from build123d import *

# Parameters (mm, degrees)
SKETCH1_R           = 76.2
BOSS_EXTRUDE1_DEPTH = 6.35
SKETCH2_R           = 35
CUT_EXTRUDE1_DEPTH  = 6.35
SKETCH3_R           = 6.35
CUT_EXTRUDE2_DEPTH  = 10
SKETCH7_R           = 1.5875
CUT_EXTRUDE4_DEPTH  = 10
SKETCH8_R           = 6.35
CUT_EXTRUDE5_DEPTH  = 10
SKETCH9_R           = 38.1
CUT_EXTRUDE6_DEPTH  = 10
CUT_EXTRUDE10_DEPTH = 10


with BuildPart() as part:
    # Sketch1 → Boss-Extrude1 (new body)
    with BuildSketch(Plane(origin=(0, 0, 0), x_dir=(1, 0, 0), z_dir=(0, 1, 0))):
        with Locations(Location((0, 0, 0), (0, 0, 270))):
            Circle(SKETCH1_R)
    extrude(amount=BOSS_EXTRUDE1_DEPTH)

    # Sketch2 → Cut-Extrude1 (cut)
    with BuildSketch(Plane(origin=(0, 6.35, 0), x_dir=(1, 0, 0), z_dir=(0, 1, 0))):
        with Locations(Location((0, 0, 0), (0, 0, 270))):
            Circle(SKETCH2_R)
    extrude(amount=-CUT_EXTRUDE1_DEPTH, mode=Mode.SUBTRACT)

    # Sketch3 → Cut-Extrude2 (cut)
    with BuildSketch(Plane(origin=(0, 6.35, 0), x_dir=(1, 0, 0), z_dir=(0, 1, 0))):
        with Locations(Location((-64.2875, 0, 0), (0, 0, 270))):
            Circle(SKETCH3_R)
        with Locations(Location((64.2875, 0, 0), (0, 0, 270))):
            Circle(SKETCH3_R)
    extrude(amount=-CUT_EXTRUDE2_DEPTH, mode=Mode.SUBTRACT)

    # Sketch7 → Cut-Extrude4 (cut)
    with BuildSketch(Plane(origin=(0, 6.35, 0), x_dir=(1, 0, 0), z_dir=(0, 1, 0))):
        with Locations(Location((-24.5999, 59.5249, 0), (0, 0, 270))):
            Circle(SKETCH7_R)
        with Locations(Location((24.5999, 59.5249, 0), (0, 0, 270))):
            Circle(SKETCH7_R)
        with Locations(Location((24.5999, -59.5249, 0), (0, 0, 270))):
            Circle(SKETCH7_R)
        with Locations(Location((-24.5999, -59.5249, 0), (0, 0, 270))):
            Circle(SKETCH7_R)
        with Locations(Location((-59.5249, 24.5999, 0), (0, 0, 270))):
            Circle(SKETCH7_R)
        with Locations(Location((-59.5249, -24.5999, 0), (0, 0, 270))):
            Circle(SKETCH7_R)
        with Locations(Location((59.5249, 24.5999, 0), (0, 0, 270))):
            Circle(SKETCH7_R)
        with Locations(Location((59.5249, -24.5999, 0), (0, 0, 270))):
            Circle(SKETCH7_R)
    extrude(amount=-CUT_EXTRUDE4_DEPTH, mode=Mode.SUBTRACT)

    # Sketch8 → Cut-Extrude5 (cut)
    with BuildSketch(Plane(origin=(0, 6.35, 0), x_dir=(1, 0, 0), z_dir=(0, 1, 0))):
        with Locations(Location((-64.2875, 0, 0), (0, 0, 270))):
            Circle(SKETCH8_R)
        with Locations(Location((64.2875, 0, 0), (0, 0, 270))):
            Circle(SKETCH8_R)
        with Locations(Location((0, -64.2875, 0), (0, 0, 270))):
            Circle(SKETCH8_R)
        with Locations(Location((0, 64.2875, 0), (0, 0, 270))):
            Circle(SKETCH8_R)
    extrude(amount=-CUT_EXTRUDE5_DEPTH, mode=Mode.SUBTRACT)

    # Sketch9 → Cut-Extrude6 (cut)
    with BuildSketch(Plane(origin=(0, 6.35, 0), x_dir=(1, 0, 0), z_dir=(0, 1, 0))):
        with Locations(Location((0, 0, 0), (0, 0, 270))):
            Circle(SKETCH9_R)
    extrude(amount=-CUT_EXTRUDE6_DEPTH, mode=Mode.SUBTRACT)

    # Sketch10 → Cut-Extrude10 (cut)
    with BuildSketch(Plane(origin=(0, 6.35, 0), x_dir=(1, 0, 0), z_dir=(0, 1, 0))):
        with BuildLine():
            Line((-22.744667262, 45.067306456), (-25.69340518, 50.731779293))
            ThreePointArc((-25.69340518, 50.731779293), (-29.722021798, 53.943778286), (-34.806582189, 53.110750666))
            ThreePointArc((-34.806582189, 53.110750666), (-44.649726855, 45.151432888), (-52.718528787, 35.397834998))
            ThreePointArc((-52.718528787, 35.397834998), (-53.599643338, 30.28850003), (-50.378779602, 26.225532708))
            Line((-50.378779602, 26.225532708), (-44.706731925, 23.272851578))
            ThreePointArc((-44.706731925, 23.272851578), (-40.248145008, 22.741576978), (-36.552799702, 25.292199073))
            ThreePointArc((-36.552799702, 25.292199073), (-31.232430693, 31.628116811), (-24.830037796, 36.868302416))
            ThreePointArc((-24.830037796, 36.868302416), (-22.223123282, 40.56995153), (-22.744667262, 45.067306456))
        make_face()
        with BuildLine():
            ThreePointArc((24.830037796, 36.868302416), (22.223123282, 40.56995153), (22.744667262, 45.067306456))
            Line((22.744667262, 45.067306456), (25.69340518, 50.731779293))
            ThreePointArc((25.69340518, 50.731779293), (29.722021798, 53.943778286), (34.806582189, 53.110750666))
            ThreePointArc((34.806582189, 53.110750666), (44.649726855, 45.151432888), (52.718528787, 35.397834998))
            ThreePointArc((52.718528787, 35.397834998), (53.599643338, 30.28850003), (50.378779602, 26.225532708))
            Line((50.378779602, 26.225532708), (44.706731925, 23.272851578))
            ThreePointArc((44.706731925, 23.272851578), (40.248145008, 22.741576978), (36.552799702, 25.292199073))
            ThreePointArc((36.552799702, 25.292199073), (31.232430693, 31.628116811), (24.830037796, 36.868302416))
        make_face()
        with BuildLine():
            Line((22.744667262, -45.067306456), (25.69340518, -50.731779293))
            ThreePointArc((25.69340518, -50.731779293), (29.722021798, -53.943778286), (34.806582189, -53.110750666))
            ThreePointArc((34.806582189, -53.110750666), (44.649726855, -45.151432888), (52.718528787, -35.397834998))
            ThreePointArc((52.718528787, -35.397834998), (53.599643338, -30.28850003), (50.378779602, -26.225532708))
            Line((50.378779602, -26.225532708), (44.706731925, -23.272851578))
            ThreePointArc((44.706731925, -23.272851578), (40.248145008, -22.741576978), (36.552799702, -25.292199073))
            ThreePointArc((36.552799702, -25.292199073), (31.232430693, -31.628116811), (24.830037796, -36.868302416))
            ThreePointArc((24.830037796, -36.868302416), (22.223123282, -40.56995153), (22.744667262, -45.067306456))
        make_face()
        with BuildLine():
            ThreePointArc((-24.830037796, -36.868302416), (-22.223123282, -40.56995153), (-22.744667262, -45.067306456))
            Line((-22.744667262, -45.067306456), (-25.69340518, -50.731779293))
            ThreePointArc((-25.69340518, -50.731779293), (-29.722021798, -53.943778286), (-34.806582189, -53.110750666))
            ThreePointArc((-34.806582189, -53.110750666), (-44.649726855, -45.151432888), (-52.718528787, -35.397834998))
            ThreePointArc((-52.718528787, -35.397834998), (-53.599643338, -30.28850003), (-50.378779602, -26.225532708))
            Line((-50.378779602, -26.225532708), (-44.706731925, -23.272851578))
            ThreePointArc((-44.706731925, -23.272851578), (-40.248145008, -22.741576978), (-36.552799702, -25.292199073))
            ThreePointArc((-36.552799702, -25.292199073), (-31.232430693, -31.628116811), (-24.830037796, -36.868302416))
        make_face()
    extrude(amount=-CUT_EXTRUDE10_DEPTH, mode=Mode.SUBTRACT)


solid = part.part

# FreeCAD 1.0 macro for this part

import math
import FreeCAD as App
import Part
import Sketcher

V = App.Vector
Q = App.Units.Quantity

doc = App.newDocument("Part")
body = doc.addObject("PartDesign::Body", "Body")

# Sketch on XZ plane
sketch1 = doc.addObject("Sketcher::SketchObject", "Sketch")
body.addObject(sketch1)
sketch1.AttachmentSupport = (doc.XZ_Plane, [""])
sketch1.MapMode = "FlatFace"
sketch1.addGeometry(Part.Circle(V(0, 0, 0), V(0, 0, 1), 76), False)
sketch1.addConstraint([
    Sketcher.Constraint("Coincident", 0, 3, -1, 1),
    Sketcher.Constraint("Diameter", 0, Q("6 in")),
])
pad1 = doc.addObject("PartDesign::Pad", "Pad")
body.addObject(pad1)
pad1.Profile = sketch1
pad1.Length = Q("0.25 in")
pad1.Reversed = True

# Sketch on XZ plane
sketch2 = doc.addObject("Sketcher::SketchObject", "Sketch001")
body.addObject(sketch2)
sketch2.AttachmentSupport = (doc.XZ_Plane, [""])
sketch2.MapMode = "FlatFace"
sketch2.AttachmentOffset = App.Placement(V(0, 0, -0.25 * 25.4), App.Rotation())
sketch2.addGeometry(Part.Circle(V(0, 0, 0), V(0, 0, 1), 35), False)
sketch2.addConstraint([
    Sketcher.Constraint("Coincident", 0, 3, -1, 1),
    Sketcher.Constraint("Diameter", 0, Q("70 mm")),
])
pocket1 = doc.addObject("PartDesign::Pocket", "Pocket")
body.addObject(pocket1)
pocket1.Profile = sketch2
pocket1.Length = Q("0.25 in")
pocket1.Reversed = True

# Sketch on XZ plane
sketch3 = doc.addObject("Sketcher::SketchObject", "Sketch002")
body.addObject(sketch3)
sketch3.AttachmentSupport = (doc.XZ_Plane, [""])
sketch3.MapMode = "FlatFace"
sketch3.AttachmentOffset = App.Placement(V(0, 0, -0.25 * 25.4), App.Rotation())
sketch3.addGeometry([
    Part.Circle(V(-64, 0, 0), V(0, 0, 1), 6),
    Part.Circle(V(64, 0, 0), V(0, 0, 1), 6),
], False)
sketch3.addConstraint([
    Sketcher.Constraint("Equal", 0, 1),
    Sketcher.Constraint("Symmetric", 0, 3, 1, 3, -1, 1),
    Sketcher.Constraint("PointOnObject", 0, 3, -1),
    Sketcher.Constraint("Diameter", 0, Q("0.5 in")),
    Sketcher.Constraint("DistanceX", 0, 3, -1, 1, Q("64.2875 mm")),
])
pocket2 = doc.addObject("PartDesign::Pocket", "Pocket001")
body.addObject(pocket2)
pocket2.Profile = sketch3
pocket2.Length = 10
pocket2.Reversed = True

# Sketch on XZ plane
sketch4 = doc.addObject("Sketcher::SketchObject", "Sketch003")
body.addObject(sketch4)
sketch4.AttachmentSupport = (doc.XZ_Plane, [""])
sketch4.MapMode = "FlatFace"
sketch4.AttachmentOffset = App.Placement(V(0, 0, -0.25 * 25.4), App.Rotation())
sketch4.addGeometry([
    Part.Circle(V(-24.6, -59.5, 0), V(0, 0, 1), 1.6),  # 0
    Part.Circle(V(24.6, -59.5, 0), V(0, 0, 1), 1.6),  # 1
    Part.Circle(V(24.6, 59.5, 0), V(0, 0, 1), 1.6),  # 2
    Part.Circle(V(-24.6, 59.5, 0), V(0, 0, 1), 1.6),  # 3
    Part.Circle(V(-59.5, -24.6, 0), V(0, 0, 1), 1.6),  # 4
    Part.Circle(V(-59.5, 24.6, 0), V(0, 0, 1), 1.6),  # 5
    Part.Circle(V(59.5, -24.6, 0), V(0, 0, 1), 1.6),  # 6
    Part.Circle(V(59.5, 24.6, 0), V(0, 0, 1), 1.6),  # 7
], False)
sketch4.addConstraint([
    Sketcher.Constraint("Equal", 0, 1),
    Sketcher.Constraint("Equal", 1, 2),
    Sketcher.Constraint("Equal", 2, 3),
    Sketcher.Constraint("Equal", 3, 4),
    Sketcher.Constraint("Equal", 4, 5),
    Sketcher.Constraint("Equal", 5, 6),
    Sketcher.Constraint("Equal", 6, 7),
    Sketcher.Constraint("Symmetric", 0, 3, 2, 3, -1, 1),
    Sketcher.Constraint("Symmetric", 1, 3, 3, 3, -1, 1),
    Sketcher.Constraint("Symmetric", 5, 3, 6, 3, -1, 1),
    Sketcher.Constraint("Symmetric", 4, 3, 7, 3, -1, 1),
    Sketcher.Constraint("Symmetric", 0, 3, 1, 3, -2),
    Sketcher.Constraint("Symmetric", 4, 3, 6, 3, -2),
    Sketcher.Constraint("Diameter", 0, Q("0.125 in")),
    Sketcher.Constraint("DistanceX", 0, 3, 1, 3, Q("1.937 in")),
    Sketcher.Constraint("DistanceY", 1, 3, 2, 3, Q("4.687 in")),
    Sketcher.Constraint("DistanceX", 4, 3, 0, 3, Q("1.375 in")),
    Sketcher.Constraint("DistanceY", 0, 3, 4, 3, Q("1.375 in")),
])
pocket3 = doc.addObject("PartDesign::Pocket", "Pocket002")
body.addObject(pocket3)
pocket3.Profile = sketch4
pocket3.Length = 10
pocket3.Reversed = True

# Sketch on XZ plane
sketch5 = doc.addObject("Sketcher::SketchObject", "Sketch004")
body.addObject(sketch5)
sketch5.AttachmentSupport = (doc.XZ_Plane, [""])
sketch5.MapMode = "FlatFace"
sketch5.AttachmentOffset = App.Placement(V(0, 0, -0.25 * 25.4), App.Rotation())
sketch5.addGeometry([
    Part.Circle(V(-64, 0, 0), V(0, 0, 1), 6),
    Part.Circle(V(64, 0, 0), V(0, 0, 1), 6),
    Part.Circle(V(0, 64, 0), V(0, 0, 1), 6),
    Part.Circle(V(0, -64, 0), V(0, 0, 1), 6),
], False)
sketch5.addConstraint([
    Sketcher.Constraint("Equal", 0, 1),
    Sketcher.Constraint("Equal", 1, 2),
    Sketcher.Constraint("Equal", 2, 3),
    Sketcher.Constraint("Symmetric", 0, 3, 1, 3, -1, 1),
    Sketcher.Constraint("Symmetric", 2, 3, 3, 3, -1, 1),
    Sketcher.Constraint("PointOnObject", 0, 3, -1),
    Sketcher.Constraint("PointOnObject", 2, 3, -2),
    Sketcher.Constraint("Diameter", 0, Q("0.5 in")),
    Sketcher.Constraint("DistanceX", 0, 3, -1, 1, Q("64.2875 mm")),
    Sketcher.Constraint("DistanceY", -1, 1, 2, 3, Q("64.2875 mm")),
])
pocket4 = doc.addObject("PartDesign::Pocket", "Pocket003")
body.addObject(pocket4)
pocket4.Profile = sketch5
pocket4.Length = 10
pocket4.Reversed = True

# Sketch on XZ plane
sketch6 = doc.addObject("Sketcher::SketchObject", "Sketch005")
body.addObject(sketch6)
sketch6.AttachmentSupport = (doc.XZ_Plane, [""])
sketch6.MapMode = "FlatFace"
sketch6.AttachmentOffset = App.Placement(V(0, 0, -0.25 * 25.4), App.Rotation())
sketch6.addGeometry(Part.Circle(V(0, 0, 0), V(0, 0, 1), 38), False)
sketch6.addConstraint([
    Sketcher.Constraint("Coincident", 0, 3, -1, 1),
    Sketcher.Constraint("Diameter", 0, Q("3 in")),
])
pocket5 = doc.addObject("PartDesign::Pocket", "Pocket004")
body.addObject(pocket5)
pocket5.Profile = sketch6
pocket5.Length = 10
pocket5.Reversed = True

# Sketch on XZ plane
sketch7 = doc.addObject("Sketcher::SketchObject", "Sketch006")
body.addObject(sketch7)
sketch7.AttachmentSupport = (doc.XZ_Plane, [""])
sketch7.MapMode = "FlatFace"
sketch7.AttachmentOffset = App.Placement(V(0, 0, -0.25 * 25.4), App.Rotation())
sketch7.addGeometry([
    Part.LineSegment(V(-23, -45, 0), V(-26, -51, 0)),  # 0
    Part.ArcOfCircle(Part.Circle(V(-31, -48, 0), V(0, 0, 1), 6), math.radians(-123), math.radians(-27)),  # 1
    Part.ArcOfCircle(Part.Circle(V(0, 0, 0), V(0, 0, 1), 63), math.radians(-146), math.radians(-123)),  # 2
    Part.ArcOfCircle(Part.Circle(V(-47, -32, 0), V(0, 0, 1), 6), math.radians(117), math.radians(214)),  # 3
    Part.LineSegment(V(-50, -26, 0), V(-45, -23, 0)),  # 4
    Part.ArcOfCircle(Part.Circle(V(-42, -29, 0), V(0, 0, 1), 6), math.radians(35), math.radians(117)),  # 5
    Part.ArcOfCircle(Part.Circle(V(0, 0, 0), V(0, 0, 1), 44), math.radians(-145), math.radians(-124)),  # 6
    Part.ArcOfCircle(Part.Circle(V(-28, -42, 0), V(0, 0, 1), 6), math.radians(-28), math.radians(56)),  # 7
    Part.ArcOfCircle(Part.Circle(V(28, -42, 0), V(0, 0, 1), 6), math.radians(124), math.radians(208)),  # 8
    Part.ArcOfCircle(Part.Circle(V(0, 0, 0), V(0, 0, 1), 44), math.radians(-56), math.radians(-35)),  # 9
    Part.ArcOfCircle(Part.Circle(V(42, -29, 0), V(0, 0, 1), 6), math.radians(63), math.radians(145)),  # 10
    Part.LineSegment(V(45, -23, 0), V(50, -26, 0)),  # 11
    Part.ArcOfCircle(Part.Circle(V(47, -32, 0), V(0, 0, 1), 6), math.radians(-34), math.radians(63)),  # 12
    Part.ArcOfCircle(Part.Circle(V(0, 0, 0), V(0, 0, 1), 63), math.radians(-57), math.radians(-34)),  # 13
    Part.ArcOfCircle(Part.Circle(V(31, -48, 0), V(0, 0, 1), 6), math.radians(-153), math.radians(-57)),  # 14
    Part.LineSegment(V(26, -51, 0), V(23, -45, 0)),  # 15
    Part.LineSegment(V(23, 45, 0), V(26, 51, 0)),  # 16
    Part.ArcOfCircle(Part.Circle(V(31, 48, 0), V(0, 0, 1), 6), math.radians(57), math.radians(153)),  # 17
    Part.ArcOfCircle(Part.Circle(V(0, 0, 0), V(0, 0, 1), 63), math.radians(34), math.radians(57)),  # 18
    Part.ArcOfCircle(Part.Circle(V(47, 32, 0), V(0, 0, 1), 6), math.radians(-63), math.radians(34)),  # 19
    Part.LineSegment(V(50, 26, 0), V(45, 23, 0)),  # 20
    Part.ArcOfCircle(Part.Circle(V(42, 29, 0), V(0, 0, 1), 6), math.radians(-145), math.radians(-63)),  # 21
    Part.ArcOfCircle(Part.Circle(V(0, 0, 0), V(0, 0, 1), 44), math.radians(35), math.radians(56)),  # 22
    Part.ArcOfCircle(Part.Circle(V(28, 42, 0), V(0, 0, 1), 6), math.radians(152), math.radians(236)),  # 23
    Part.ArcOfCircle(Part.Circle(V(-28, 42, 0), V(0, 0, 1), 6), math.radians(-56), math.radians(28)),  # 24
    Part.ArcOfCircle(Part.Circle(V(0, 0, 0), V(0, 0, 1), 44), math.radians(124), math.radians(145)),  # 25
    Part.ArcOfCircle(Part.Circle(V(-42, 29, 0), V(0, 0, 1), 6), math.radians(-117), math.radians(-35)),  # 26
    Part.LineSegment(V(-45, 23, 0), V(-50, 26, 0)),  # 27
    Part.ArcOfCircle(Part.Circle(V(-47, 32, 0), V(0, 0, 1), 6), math.radians(146), math.radians(243)),  # 28
    Part.ArcOfCircle(Part.Circle(V(0, 0, 0), V(0, 0, 1), 63), math.radians(123), math.radians(146)),  # 29
    Part.ArcOfCircle(Part.Circle(V(-31, 48, 0), V(0, 0, 1), 6), math.radians(27), math.radians(123)),  # 30
    Part.LineSegment(V(-26, 51, 0), V(-23, 45, 0)),  # 31
], False)
sketch7.addConstraint([
    Sketcher.Constraint("Tangent", 0, 2, 1, 2),
    Sketcher.Constraint("Tangent", 1, 1, 2, 2),
    Sketcher.Constraint("Tangent", 2, 1, 3, 2),
    Sketcher.Constraint("Tangent", 3, 1, 4, 1),
    Sketcher.Constraint("Tangent", 4, 2, 5, 2),
    Sketcher.Constraint("Tangent", 5, 1, 6, 1),
    Sketcher.Constraint("Tangent", 6, 2, 7, 2),
    Sketcher.Constraint("Tangent", 7, 1, 0, 1),
    Sketcher.Constraint("Tangent", 8, 1, 9, 1),
    Sketcher.Constraint("Tangent", 9, 2, 10, 2),
    Sketcher.Constraint("Tangent", 10, 1, 11, 1),
    Sketcher.Constraint("Tangent", 11, 2, 12, 2),
    Sketcher.Constraint("Tangent", 12, 1, 13, 2),
    Sketcher.Constraint("Tangent", 13, 1, 14, 2),
    Sketcher.Constraint("Tangent", 14, 1, 15, 1),
    Sketcher.Constraint("Tangent", 15, 2, 8, 2),
    Sketcher.Constraint("Tangent", 16, 2, 17, 2),
    Sketcher.Constraint("Tangent", 17, 1, 18, 2),
    Sketcher.Constraint("Tangent", 18, 1, 19, 2),
    Sketcher.Constraint("Tangent", 19, 1, 20, 1),
    Sketcher.Constraint("Tangent", 20, 2, 21, 2),
    Sketcher.Constraint("Tangent", 21, 1, 22, 1),
    Sketcher.Constraint("Tangent", 22, 2, 23, 2),
    Sketcher.Constraint("Tangent", 23, 1, 16, 1),
    Sketcher.Constraint("Tangent", 24, 1, 25, 1),
    Sketcher.Constraint("Tangent", 25, 2, 26, 2),
    Sketcher.Constraint("Tangent", 26, 1, 27, 1),
    Sketcher.Constraint("Tangent", 27, 2, 28, 2),
    Sketcher.Constraint("Tangent", 28, 1, 29, 2),
    Sketcher.Constraint("Tangent", 29, 1, 30, 2),
    Sketcher.Constraint("Tangent", 30, 1, 31, 1),
    Sketcher.Constraint("Tangent", 31, 2, 24, 2),
    Sketcher.Constraint("Coincident", 2, 3, -1, 1),
    Sketcher.Constraint("Coincident", 6, 3, -1, 1),
    Sketcher.Constraint("Coincident", 9, 3, -1, 1),
    Sketcher.Constraint("Coincident", 13, 3, -1, 1),
    Sketcher.Constraint("Coincident", 18, 3, -1, 1),
    Sketcher.Constraint("Coincident", 22, 3, -1, 1),
    Sketcher.Constraint("Coincident", 25, 3, -1, 1),
    Sketcher.Constraint("Coincident", 29, 3, -1, 1),
    Sketcher.Constraint("Equal", 1, 3),
    Sketcher.Constraint("Equal", 3, 5),
    Sketcher.Constraint("Equal", 5, 7),
    Sketcher.Constraint("Equal", 7, 8),
    Sketcher.Constraint("Equal", 6, 9),
    Sketcher.Constraint("Equal", 8, 10),
    Sketcher.Constraint("Equal", 10, 12),
    Sketcher.Constraint("Equal", 2, 13),
    Sketcher.Constraint("Equal", 12, 14),
    Sketcher.Constraint("Equal", 14, 17),
    Sketcher.Constraint("Equal", 13, 18),
    Sketcher.Constraint("Equal", 17, 19),
    Sketcher.Constraint("Equal", 19, 21),
    Sketcher.Constraint("Equal", 9, 22),
    Sketcher.Constraint("Equal", 21, 23),
    Sketcher.Constraint("Equal", 23, 24),
    Sketcher.Constraint("Equal", 22, 25),
    Sketcher.Constraint("Equal", 24, 26),
    Sketcher.Constraint("Equal", 26, 28),
    Sketcher.Constraint("Equal", 18, 29),
    Sketcher.Constraint("Equal", 28, 30),
    Sketcher.Constraint("Symmetric", 0, 2, 16, 2, -1, 1),
    Sketcher.Constraint("Symmetric", 3, 1, 19, 1, -1, 1),
    Sketcher.Constraint("Symmetric", 10, 1, 26, 1, -1, 1),
    Sketcher.Constraint("Symmetric", 14, 1, 30, 1, -1, 1),
    Sketcher.Constraint("Symmetric", 4, 2, 10, 1, -2),
    Sketcher.Constraint("Symmetric", 0, 2, 14, 1, -2),
    Sketcher.Constraint("Perpendicular", 0, 11),
    Sketcher.Constraint("Radius", 2, Q("2.5 in")),
    Sketcher.Constraint("Radius", 1, Q("0.25 in")),
    Sketcher.Constraint("Radius", 6, Q("1.75 in")),
    Sketcher.Constraint("Angle", 0, Q("-117.5 deg")),
    Sketcher.Constraint("DistanceX", 5, 1, -1, 1, Q("36.5528 mm")),
    Sketcher.Constraint("DistanceY", 1, 1, 3, 3, Q("21.252699 mm")),
])
pocket6 = doc.addObject("PartDesign::Pocket", "Pocket005")
body.addObject(pocket6)
pocket6.Profile = sketch7
pocket6.Length = 10
pocket6.Reversed = True

doc.recompute()
